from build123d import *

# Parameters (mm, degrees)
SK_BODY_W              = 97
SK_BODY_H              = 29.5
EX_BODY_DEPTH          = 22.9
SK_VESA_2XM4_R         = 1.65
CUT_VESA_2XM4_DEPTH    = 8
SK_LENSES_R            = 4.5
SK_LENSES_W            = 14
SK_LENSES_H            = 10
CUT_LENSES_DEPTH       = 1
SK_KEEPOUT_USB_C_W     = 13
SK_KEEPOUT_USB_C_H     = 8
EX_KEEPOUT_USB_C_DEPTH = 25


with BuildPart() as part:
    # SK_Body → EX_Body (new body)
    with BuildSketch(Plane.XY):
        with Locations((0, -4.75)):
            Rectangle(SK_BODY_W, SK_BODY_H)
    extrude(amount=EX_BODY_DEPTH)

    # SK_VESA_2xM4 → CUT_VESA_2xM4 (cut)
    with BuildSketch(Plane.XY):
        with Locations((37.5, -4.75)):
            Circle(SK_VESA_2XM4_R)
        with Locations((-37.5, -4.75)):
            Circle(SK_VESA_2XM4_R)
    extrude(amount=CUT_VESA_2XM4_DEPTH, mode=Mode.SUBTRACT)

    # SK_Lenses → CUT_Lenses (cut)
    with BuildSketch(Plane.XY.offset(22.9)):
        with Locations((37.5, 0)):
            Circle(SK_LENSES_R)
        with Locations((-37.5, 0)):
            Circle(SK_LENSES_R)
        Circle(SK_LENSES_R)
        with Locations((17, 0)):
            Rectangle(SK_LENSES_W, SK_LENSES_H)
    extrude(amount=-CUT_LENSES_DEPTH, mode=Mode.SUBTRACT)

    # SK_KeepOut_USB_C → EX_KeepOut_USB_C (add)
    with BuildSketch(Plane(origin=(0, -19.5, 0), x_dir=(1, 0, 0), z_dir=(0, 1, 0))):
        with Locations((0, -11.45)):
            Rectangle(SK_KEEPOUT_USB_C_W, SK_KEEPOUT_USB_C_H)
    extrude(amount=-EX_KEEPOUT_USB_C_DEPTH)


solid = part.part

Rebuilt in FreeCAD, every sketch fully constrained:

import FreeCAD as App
import Part
import Sketcher


def add_polygon(sketch, points):
    """Adds a closed chain of lines whose ends are joined by coincident constraints."""
    first, n = sketch.GeometryCount, len(points)
    for a, b in zip(points, points[1:] + points[:1]):
        sketch.addGeometry(Part.LineSegment(App.Vector(*a, 0), App.Vector(*b, 0)), False)
    for i in range(n):
        sketch.addConstraint(Sketcher.Constraint("Coincident", first + i, 2, first + (i + 1) % n, 1))

doc = App.newDocument("Part")
params = doc.addObject("Spreadsheet::Sheet", "Params")
for row, (alias, value) in enumerate([
    ("sketch1_width", "97 mm"),
    ("sketch1_height", "29.5 mm"),
    ("pad1_length", "22.9 mm"),
    ("sketch2_diameter", "3.3 mm"),
    ("pocket1_length", "8 mm"),
    ("sketch3_diameter", "9 mm"),
    ("sketch3_width", "14 mm"),
    ("sketch3_height", "10 mm"),
    ("pocket2_length", "1 mm"),
    ("sketch4_width", "13 mm"),
    ("sketch4_height", "8 mm"),
    ("pad2_length", "25 mm"),
], start=1):
    params.set(f"A{row}", alias)
    params.set(f"B{row}", "=" + value)
    params.setAlias(f"B{row}", alias)

body = doc.addObject("PartDesign::Body", "Body")

# Sketch on XY plane
sketch1 = body.newObject("Sketcher::SketchObject", "Sketch")
sketch1.AttachmentSupport = (doc.getObject("XY_Plane"), [""])
sketch1.MapMode = "FlatFace"
add_polygon(sketch1, [(-48, 10), (-48, -20), (48, -20), (48, 10)])  # lines 0-3
sketch1.addConstraint(Sketcher.Constraint("Vertical", 0))
sketch1.addConstraint(Sketcher.Constraint("Horizontal", 1))
sketch1.addConstraint(Sketcher.Constraint("Vertical", 2))
sketch1.addConstraint(Sketcher.Constraint("Horizontal", 3))
sketch1.addConstraint(Sketcher.Constraint("DistanceX", 1, 1, 1, 2, 97.0))
sketch1.addConstraint(Sketcher.Constraint("DistanceY", 0, 2, 0, 1, 29.5))
sketch1.addConstraint(Sketcher.Constraint("DistanceY", -1, 1, 2, 2, 10.0))
sketch1.addConstraint(Sketcher.Constraint("DistanceX", 0, 2, -1, 1, 48.5))
sketch1.setExpression("Constraints[8]", "Params.sketch1_width")
sketch1.setExpression("Constraints[9]", "Params.sketch1_height")
pad1 = body.newObject("PartDesign::Pad", "Pad")
pad1.Profile = sketch1
pad1.setExpression("Length", "Params.pad1_length")

# Sketch on XY plane
sketch2 = body.newObject("Sketcher::SketchObject", "Sketch001")
sketch2.AttachmentSupport = (doc.getObject("XY_Plane"), [""])
sketch2.MapMode = "FlatFace"
sketch2.addGeometry(Part.Circle(App.Vector(37.5, -4.8, 0), App.Vector(0, 0, 1), 1.6), False)
sketch2.addGeometry(Part.Circle(App.Vector(-37.5, -4.8, 0), App.Vector(0, 0, 1), 1.6), False)
sketch2.addConstraint(Sketcher.Constraint("Equal", 0, 1))
sketch2.addConstraint(Sketcher.Constraint("Symmetric", 0, 3, 1, 3, -2))
sketch2.addConstraint(Sketcher.Constraint("Diameter", 0, 3.3))
sketch2.addConstraint(Sketcher.Constraint("DistanceX", 1, 3, 0, 3, 75.0))
sketch2.addConstraint(Sketcher.Constraint("DistanceY", 0, 3, -1, 1, 4.75))
sketch2.setExpression("Constraints[2]", "Params.sketch2_diameter")
pocket1 = body.newObject("PartDesign::Pocket", "Pocket")
pocket1.Profile = sketch2
pocket1.setExpression("Length", "Params.pocket1_length")
pocket1.Reversed = True

# Sketch on XY plane
sketch3 = body.newObject("Sketcher::SketchObject", "Sketch002")
sketch3.AttachmentSupport = (doc.getObject("XY_Plane"), [""])
sketch3.MapMode = "FlatFace"
sketch3.AttachmentOffset = App.Placement(App.Vector(0, 0, 22.9), App.Rotation())
sketch3.addGeometry(Part.Circle(App.Vector(37.5, 0, 0), App.Vector(0, 0, 1), 4.5), False)  # 0
sketch3.addGeometry(Part.Circle(App.Vector(-37.5, 0, 0), App.Vector(0, 0, 1), 4.5), False)  # 1
sketch3.addGeometry(Part.Circle(App.Vector(0, 0, 0), App.Vector(0, 0, 1), 4.5), False)  # 2
add_polygon(sketch3, [(10, 5), (10, -5), (24, -5), (24, 5)])  # lines 3-6
sketch3.addConstraint(Sketcher.Constraint("Vertical", 3))
sketch3.addConstraint(Sketcher.Constraint("Horizontal", 4))
sketch3.addConstraint(Sketcher.Constraint("Vertical", 5))
sketch3.addConstraint(Sketcher.Constraint("Horizontal", 6))
sketch3.addConstraint(Sketcher.Constraint("Coincident", 2, 3, -1, 1))
sketch3.addConstraint(Sketcher.Constraint("Equal", 0, 1))
sketch3.addConstraint(Sketcher.Constraint("Equal", 1, 2))
sketch3.addConstraint(Sketcher.Constraint("Symmetric", 0, 3, 1, 3, -1, 1))
sketch3.addConstraint(Sketcher.Constraint("PointOnObject", 0, 3, -1))
sketch3.addConstraint(Sketcher.Constraint("Diameter", 0, 9.0))
sketch3.addConstraint(Sketcher.Constraint("DistanceX", 4, 1, 4, 2, 14.0))
sketch3.addConstraint(Sketcher.Constraint("DistanceY", 3, 2, 3, 1, 10.0))
sketch3.addConstraint(Sketcher.Constraint("DistanceX", -1, 1, 3, 2, 10.0))
sketch3.addConstraint(Sketcher.Constraint("DistanceY", 3, 2, -1, 1, 5.0))
sketch3.addConstraint(Sketcher.Constraint("DistanceX", 1, 3, 0, 3, 75.0))
sketch3.setExpression("Constraints[13]", "Params.sketch3_diameter")
sketch3.setExpression("Constraints[14]", "Params.sketch3_width")
sketch3.setExpression("Constraints[15]", "Params.sketch3_height")
pocket2 = body.newObject("PartDesign::Pocket", "Pocket001")
pocket2.Profile = sketch3
pocket2.setExpression("Length", "Params.pocket2_length")

# Sketch on XZ plane
sketch4 = body.newObject("Sketcher::SketchObject", "Sketch003")
sketch4.AttachmentSupport = (doc.getObject("XZ_Plane"), [""])
sketch4.MapMode = "FlatFace"
sketch4.AttachmentOffset = App.Placement(App.Vector(0, 0, 19.5), App.Rotation())
add_polygon(sketch4, [(-6, 7), (-6, 15), (6, 15), (6, 7)])  # lines 0-3
sketch4.addConstraint(Sketcher.Constraint("Vertical", 0))
sketch4.addConstraint(Sketcher.Constraint("Horizontal", 1))
sketch4.addConstraint(Sketcher.Constraint("Vertical", 2))
sketch4.addConstraint(Sketcher.Constraint("Horizontal", 3))
sketch4.addConstraint(Sketcher.Constraint("DistanceX", 1, 1, 1, 2, 13.0))
sketch4.addConstraint(Sketcher.Constraint("DistanceY", 0, 1, 0, 2, 8.0))
sketch4.addConstraint(Sketcher.Constraint("DistanceX", 0, 2, -1, 1, 6.5))
sketch4.addConstraint(Sketcher.Constraint("DistanceY", -1, 1, 0, 2, 15.45))
sketch4.setExpression("Constraints[8]", "Params.sketch4_width")
sketch4.setExpression("Constraints[9]", "Params.sketch4_height")
pad2 = body.newObject("PartDesign::Pad", "Pad001")
pad2.Profile = sketch4
pad2.setExpression("Length", "Params.pad2_length")

doc.recompute()
